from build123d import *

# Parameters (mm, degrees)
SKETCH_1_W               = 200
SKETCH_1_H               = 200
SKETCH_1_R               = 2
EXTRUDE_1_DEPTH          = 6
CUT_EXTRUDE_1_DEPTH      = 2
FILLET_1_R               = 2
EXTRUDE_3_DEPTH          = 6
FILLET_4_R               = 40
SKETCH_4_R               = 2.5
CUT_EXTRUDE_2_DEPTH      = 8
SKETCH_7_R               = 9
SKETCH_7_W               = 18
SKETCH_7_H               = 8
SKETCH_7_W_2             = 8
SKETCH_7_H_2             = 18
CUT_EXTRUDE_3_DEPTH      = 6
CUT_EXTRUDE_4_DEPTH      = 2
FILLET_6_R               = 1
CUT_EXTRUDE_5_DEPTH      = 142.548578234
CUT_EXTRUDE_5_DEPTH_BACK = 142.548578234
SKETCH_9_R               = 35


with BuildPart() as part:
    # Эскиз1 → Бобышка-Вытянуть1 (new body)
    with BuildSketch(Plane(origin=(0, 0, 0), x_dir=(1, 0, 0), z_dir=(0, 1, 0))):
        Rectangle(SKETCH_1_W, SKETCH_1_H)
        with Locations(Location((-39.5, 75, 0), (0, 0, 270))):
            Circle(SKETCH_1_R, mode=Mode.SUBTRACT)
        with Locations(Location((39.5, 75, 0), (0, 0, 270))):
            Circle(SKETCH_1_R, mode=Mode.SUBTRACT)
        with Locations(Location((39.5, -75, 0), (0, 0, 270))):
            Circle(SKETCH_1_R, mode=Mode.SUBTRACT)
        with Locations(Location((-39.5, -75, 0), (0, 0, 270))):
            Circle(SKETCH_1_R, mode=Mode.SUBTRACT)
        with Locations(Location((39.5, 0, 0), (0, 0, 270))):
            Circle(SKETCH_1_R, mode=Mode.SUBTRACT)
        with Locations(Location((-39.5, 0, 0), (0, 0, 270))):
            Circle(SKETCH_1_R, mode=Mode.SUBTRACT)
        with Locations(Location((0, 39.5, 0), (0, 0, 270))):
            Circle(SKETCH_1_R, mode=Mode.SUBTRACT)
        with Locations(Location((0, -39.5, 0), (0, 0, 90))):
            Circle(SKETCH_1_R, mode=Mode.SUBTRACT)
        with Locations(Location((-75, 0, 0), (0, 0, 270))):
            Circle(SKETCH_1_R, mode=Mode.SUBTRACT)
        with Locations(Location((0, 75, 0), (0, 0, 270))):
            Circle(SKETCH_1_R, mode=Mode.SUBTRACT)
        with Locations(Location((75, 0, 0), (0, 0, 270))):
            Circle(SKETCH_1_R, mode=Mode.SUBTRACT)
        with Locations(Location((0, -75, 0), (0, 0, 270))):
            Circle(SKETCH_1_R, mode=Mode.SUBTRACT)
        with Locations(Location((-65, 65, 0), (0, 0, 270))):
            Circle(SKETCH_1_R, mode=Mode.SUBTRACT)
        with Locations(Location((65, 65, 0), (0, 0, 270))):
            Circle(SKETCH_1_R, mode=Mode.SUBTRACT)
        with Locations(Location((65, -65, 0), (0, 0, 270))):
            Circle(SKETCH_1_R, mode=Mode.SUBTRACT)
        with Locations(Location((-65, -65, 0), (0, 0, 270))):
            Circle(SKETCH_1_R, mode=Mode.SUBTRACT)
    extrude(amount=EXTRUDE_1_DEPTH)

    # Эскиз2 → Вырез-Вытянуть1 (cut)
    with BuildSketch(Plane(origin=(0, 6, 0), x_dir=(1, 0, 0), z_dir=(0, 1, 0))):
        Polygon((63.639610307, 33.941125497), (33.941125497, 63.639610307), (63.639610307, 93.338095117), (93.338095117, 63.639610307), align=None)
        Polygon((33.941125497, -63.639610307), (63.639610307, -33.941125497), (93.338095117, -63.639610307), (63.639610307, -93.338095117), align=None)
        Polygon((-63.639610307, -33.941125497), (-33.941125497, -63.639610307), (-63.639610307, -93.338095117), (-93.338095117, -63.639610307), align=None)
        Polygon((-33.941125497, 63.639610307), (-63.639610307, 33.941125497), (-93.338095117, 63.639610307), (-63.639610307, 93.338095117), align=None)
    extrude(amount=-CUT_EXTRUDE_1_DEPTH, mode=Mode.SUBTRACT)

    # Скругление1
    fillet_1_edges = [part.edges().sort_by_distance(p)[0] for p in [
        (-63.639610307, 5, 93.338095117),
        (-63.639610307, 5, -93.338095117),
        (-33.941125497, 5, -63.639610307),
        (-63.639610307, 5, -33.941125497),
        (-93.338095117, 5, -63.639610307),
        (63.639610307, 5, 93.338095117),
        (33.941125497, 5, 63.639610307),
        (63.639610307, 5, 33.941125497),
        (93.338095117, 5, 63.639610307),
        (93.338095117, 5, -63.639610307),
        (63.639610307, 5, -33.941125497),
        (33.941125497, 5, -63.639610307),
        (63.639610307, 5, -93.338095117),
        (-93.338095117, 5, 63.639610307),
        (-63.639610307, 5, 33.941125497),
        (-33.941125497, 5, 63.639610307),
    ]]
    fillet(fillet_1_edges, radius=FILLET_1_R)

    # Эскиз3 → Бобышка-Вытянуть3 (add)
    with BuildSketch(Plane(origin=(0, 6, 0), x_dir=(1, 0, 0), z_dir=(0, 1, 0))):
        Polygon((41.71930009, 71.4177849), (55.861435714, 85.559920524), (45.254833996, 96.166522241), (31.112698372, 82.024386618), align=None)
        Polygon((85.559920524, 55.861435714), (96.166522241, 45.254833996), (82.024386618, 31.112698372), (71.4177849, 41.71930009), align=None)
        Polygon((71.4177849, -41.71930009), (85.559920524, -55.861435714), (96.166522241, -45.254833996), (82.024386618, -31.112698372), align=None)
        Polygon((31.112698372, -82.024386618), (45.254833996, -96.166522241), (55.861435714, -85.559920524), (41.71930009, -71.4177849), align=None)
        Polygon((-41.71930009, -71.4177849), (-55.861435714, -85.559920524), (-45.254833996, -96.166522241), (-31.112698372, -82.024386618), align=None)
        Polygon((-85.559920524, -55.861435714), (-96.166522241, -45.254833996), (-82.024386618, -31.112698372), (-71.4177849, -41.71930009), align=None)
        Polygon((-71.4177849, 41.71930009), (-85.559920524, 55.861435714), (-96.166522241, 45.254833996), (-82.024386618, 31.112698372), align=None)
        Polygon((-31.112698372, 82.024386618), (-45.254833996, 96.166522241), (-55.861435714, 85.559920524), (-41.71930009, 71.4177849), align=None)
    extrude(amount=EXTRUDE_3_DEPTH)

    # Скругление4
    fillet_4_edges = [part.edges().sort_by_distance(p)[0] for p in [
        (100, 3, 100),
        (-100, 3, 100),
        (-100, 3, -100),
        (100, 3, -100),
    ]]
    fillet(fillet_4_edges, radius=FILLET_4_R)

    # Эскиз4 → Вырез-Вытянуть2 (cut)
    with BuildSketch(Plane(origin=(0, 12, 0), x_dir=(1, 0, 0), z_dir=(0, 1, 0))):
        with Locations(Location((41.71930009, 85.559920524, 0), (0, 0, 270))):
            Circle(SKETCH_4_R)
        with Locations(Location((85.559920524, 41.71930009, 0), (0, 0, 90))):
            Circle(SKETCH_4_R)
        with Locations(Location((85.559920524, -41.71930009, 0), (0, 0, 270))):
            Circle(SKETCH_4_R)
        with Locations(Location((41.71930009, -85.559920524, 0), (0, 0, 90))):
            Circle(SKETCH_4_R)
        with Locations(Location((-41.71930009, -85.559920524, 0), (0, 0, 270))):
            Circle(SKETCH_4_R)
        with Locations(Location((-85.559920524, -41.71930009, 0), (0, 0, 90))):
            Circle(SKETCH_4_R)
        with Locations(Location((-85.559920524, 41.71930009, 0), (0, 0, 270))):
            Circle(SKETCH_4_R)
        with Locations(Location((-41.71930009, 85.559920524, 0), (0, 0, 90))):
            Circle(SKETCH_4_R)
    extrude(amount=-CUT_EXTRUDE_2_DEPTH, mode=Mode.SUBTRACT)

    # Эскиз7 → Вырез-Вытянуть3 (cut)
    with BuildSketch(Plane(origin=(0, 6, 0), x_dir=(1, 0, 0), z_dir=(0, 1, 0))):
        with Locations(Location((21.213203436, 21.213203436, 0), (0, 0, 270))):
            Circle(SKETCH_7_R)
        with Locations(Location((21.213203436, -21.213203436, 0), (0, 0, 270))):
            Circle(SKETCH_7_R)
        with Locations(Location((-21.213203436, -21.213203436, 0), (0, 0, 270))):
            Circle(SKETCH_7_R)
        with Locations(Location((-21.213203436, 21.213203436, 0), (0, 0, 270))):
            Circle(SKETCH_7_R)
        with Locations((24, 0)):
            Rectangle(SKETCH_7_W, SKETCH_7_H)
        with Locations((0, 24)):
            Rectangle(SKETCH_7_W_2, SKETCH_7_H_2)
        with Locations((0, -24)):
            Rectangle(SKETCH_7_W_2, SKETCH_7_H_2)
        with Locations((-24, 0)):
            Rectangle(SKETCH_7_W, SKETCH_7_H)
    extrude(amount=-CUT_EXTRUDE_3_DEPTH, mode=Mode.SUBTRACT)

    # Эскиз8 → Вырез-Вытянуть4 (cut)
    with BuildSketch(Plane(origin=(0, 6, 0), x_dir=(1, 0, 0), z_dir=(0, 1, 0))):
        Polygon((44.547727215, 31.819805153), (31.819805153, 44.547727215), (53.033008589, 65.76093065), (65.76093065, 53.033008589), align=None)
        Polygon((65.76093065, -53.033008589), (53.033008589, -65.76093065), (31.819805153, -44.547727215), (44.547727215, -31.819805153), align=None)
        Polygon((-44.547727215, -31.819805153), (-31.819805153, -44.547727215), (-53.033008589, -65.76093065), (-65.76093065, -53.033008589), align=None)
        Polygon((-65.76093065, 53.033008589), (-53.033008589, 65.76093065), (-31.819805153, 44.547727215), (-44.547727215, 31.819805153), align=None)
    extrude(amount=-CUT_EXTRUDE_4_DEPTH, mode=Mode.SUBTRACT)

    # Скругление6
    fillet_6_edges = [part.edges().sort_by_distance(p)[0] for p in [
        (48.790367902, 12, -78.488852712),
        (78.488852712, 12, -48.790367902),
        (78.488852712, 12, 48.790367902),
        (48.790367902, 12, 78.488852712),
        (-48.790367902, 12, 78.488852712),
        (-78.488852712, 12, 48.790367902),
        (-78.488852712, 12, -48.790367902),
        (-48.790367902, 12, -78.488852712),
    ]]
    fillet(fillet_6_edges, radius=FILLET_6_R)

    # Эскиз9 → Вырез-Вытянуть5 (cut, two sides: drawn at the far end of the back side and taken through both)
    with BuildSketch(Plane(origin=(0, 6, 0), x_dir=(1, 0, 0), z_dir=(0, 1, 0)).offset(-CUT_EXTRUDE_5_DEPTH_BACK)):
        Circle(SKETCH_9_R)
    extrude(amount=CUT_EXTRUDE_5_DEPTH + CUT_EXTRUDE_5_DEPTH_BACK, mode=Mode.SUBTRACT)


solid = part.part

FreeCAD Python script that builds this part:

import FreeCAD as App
import Part
import Sketcher
from FreeCAD import Vector
Q = App.Units.Quantity


def edges_at(feature, points):
    """Names of the edges that pass closest to the given points."""
    edges = feature.Shape.Edges
    near = lambda p: min(range(len(edges)), key=lambda i: edges[i].distToShape(Part.Vertex(*p))[0])
    return sorted({f"Edge{near(p) + 1}" for p in points})

doc = App.newDocument("Part")
body = doc.addObject("PartDesign::Body", "Body")

# Sketch on XZ plane
sketch1 = body.newObject("Sketcher::SketchObject", "Sketch")
sketch1.AttachmentSupport = (doc.getObject("XZ_Plane"), [""])
sketch1.MapMode = "FlatFace"
sketch1.addGeometry([
    Part.LineSegment(Vector(-100, -100, 0), Vector(-100, 100, 0)),  # 0
    Part.LineSegment(Vector(-100, 100, 0), Vector(100, 100, 0)),  # 1
    Part.LineSegment(Vector(100, 100, 0), Vector(100, -100, 0)),  # 2
    Part.LineSegment(Vector(100, -100, 0), Vector(-100, -100, 0)),  # 3
    Part.Circle(Vector(-65, 65, 0), Vector(0, 0, 1), 2),  # 4
    Part.Circle(Vector(-39.5, 75, 0), Vector(0, 0, 1), 2),  # 5
    Part.Circle(Vector(0, 75, 0), Vector(0, 0, 1), 2),  # 6
    Part.Circle(Vector(0, 39.5, 0), Vector(0, 0, 1), 2),  # 7
    Part.Circle(Vector(39.5, 75, 0), Vector(0, 0, 1), 2),  # 8
    Part.Circle(Vector(65, 65, 0), Vector(0, 0, 1), 2),  # 9
    Part.Circle(Vector(-75, 0, 0), Vector(0, 0, 1), 2),  # 10
    Part.Circle(Vector(-39.5, 0, 0), Vector(0, 0, 1), 2),  # 11
    Part.Circle(Vector(-65, -65, 0), Vector(0, 0, 1), 2),  # 12
    Part.Circle(Vector(-39.5, -75, 0), Vector(0, 0, 1), 2),  # 13
    Part.Circle(Vector(39.5, 0, 0), Vector(0, 0, 1), 2),  # 14
    Part.Circle(Vector(75, 0, 0), Vector(0, 0, 1), 2),  # 15
    Part.Circle(Vector(0, -39.5, 0), Vector(0, 0, 1), 2),  # 16
    Part.Circle(Vector(0, -75, 0), Vector(0, 0, 1), 2),  # 17
    Part.Circle(Vector(39.5, -75, 0), Vector(0, 0, 1), 2),  # 18
    Part.Circle(Vector(65, -65, 0), Vector(0, 0, 1), 2),  # 19
], False)
sketch1.addConstraint([
    Sketcher.Constraint("Coincident", 0, 2, 1, 1),
    Sketcher.Constraint("Coincident", 1, 2, 2, 1),
    Sketcher.Constraint("Coincident", 2, 2, 3, 1),
    Sketcher.Constraint("Coincident", 3, 2, 0, 1),
    Sketcher.Constraint("Vertical", 0),
    Sketcher.Constraint("Horizontal", 1),
    Sketcher.Constraint("Vertical", 2),
    Sketcher.Constraint("Horizontal", 3),
    Sketcher.Constraint("Equal", 4, 5),
    Sketcher.Constraint("Equal", 5, 6),
    Sketcher.Constraint("Equal", 6, 7),
    Sketcher.Constraint("Equal", 7, 8),
    Sketcher.Constraint("Equal", 8, 9),
    Sketcher.Constraint("Equal", 9, 10),
    Sketcher.Constraint("Equal", 10, 11),
    Sketcher.Constraint("Equal", 11, 12),
    Sketcher.Constraint("Equal", 12, 13),
    Sketcher.Constraint("Equal", 13, 14),
    Sketcher.Constraint("Equal", 14, 15),
    Sketcher.Constraint("Equal", 15, 16),
    Sketcher.Constraint("Equal", 16, 17),
    Sketcher.Constraint("Equal", 17, 18),
    Sketcher.Constraint("Equal", 18, 19),
    Sketcher.Constraint("Symmetric", 9, 3, 12, 3, -1, 1),
    Sketcher.Constraint("Symmetric", 8, 3, 13, 3, -1, 1),
    Sketcher.Constraint("Symmetric", 11, 3, 14, 3, -1, 1),
    Sketcher.Constraint("Symmetric", 10, 3, 15, 3, -1, 1),
    Sketcher.Constraint("Symmetric", 7, 3, 16, 3, -1, 1),
    Sketcher.Constraint("Symmetric", 6, 3, 17, 3, -1, 1),
    Sketcher.Constraint("Symmetric", 5, 3, 18, 3, -1, 1),
    Sketcher.Constraint("Symmetric", 4, 3, 19, 3, -1, 1),
    Sketcher.Constraint("Symmetric", 0, 2, 2, 2, -1, 1),
    Sketcher.Constraint("Symmetric", 5, 3, 8, 3, -2),
    Sketcher.Constraint("Symmetric", 4, 3, 9, 3, -2),
    Sketcher.Constraint("PointOnObject", 6, 3, -2),
    Sketcher.Constraint("PointOnObject", 7, 3, -2),
    Sketcher.Constraint("PointOnObject", 10, 3, -1),
    Sketcher.Constraint("PointOnObject", 11, 3, -1),
    Sketcher.Constraint("Horizontal", 5, 3, 6, 3),
    Sketcher.Constraint("Vertical", 5, 3, 11, 3),
    Sketcher.Constraint("Equal", 3, 0),
    Sketcher.Constraint("Diameter", 4, Q("4 mm")),
    Sketcher.Constraint("DistanceX", 1, 1, 1, 2, Q("200 mm")),
    Sketcher.Constraint("DistanceX", 4, 3, -1, 1, Q("65 mm")),
    Sketcher.Constraint("DistanceY", -1, 1, 4, 3, Q("65 mm")),
    Sketcher.Constraint("DistanceY", -1, 1, 5, 3, Q("75 mm")),
    Sketcher.Constraint("DistanceX", 10, 3, -1, 1, Q("75 mm")),
    Sketcher.Constraint("DistanceX", 5, 3, 8, 3, Q("79 mm")),
    Sketcher.Constraint("DistanceY", 16, 3, 7, 3, Q("79 mm")),
])
pad1 = body.newObject("PartDesign::Pad", "Pad")
pad1.Profile = sketch1
pad1.Length = 6
pad1.Reversed = True

# Sketch on XZ plane
sketch2 = body.newObject("Sketcher::SketchObject", "Sketch001")
sketch2.AttachmentSupport = (doc.getObject("XZ_Plane"), [""])
sketch2.MapMode = "FlatFace"
sketch2.AttachmentOffset = App.Placement(Vector(0, 0, -6), App.Rotation())
sketch2.addGeometry([
    Part.LineSegment(Vector(33.941125, -63.63961, 0), Vector(63.63961, -33.941125, 0)),  # 0
    Part.LineSegment(Vector(63.63961, -33.941125, 0), Vector(93.338095, -63.63961, 0)),  # 1
    Part.LineSegment(Vector(93.338095, -63.63961, 0), Vector(63.63961, -93.338095, 0)),  # 2
    Part.LineSegment(Vector(63.63961, -93.338095, 0), Vector(33.941125, -63.63961, 0)),  # 3
    Part.LineSegment(Vector(63.63961, 33.941125, 0), Vector(33.941125, 63.63961, 0)),  # 4
    Part.LineSegment(Vector(33.941125, 63.63961, 0), Vector(63.63961, 93.338095, 0)),  # 5
    Part.LineSegment(Vector(63.63961, 93.338095, 0), Vector(93.338095, 63.63961, 0)),  # 6
    Part.LineSegment(Vector(93.338095, 63.63961, 0), Vector(63.63961, 33.941125, 0)),  # 7
    Part.LineSegment(Vector(-33.941125, 63.63961, 0), Vector(-63.63961, 33.941125, 0)),  # 8
    Part.LineSegment(Vector(-63.63961, 33.941125, 0), Vector(-93.338095, 63.63961, 0)),  # 9
    Part.LineSegment(Vector(-93.338095, 63.63961, 0), Vector(-63.63961, 93.338095, 0)),  # 10
    Part.LineSegment(Vector(-63.63961, 93.338095, 0), Vector(-33.941125, 63.63961, 0)),  # 11
    Part.LineSegment(Vector(-63.63961, -33.941125, 0), Vector(-33.941125, -63.63961, 0)),  # 12
    Part.LineSegment(Vector(-33.941125, -63.63961, 0), Vector(-63.63961, -93.338095, 0)),  # 13
    Part.LineSegment(Vector(-63.63961, -93.338095, 0), Vector(-93.338095, -63.63961, 0)),  # 14
    Part.LineSegment(Vector(-93.338095, -63.63961, 0), Vector(-63.63961, -33.941125, 0)),  # 15
], False)
sketch2.addConstraint([
    Sketcher.Constraint("Coincident", 0, 2, 1, 1),
    Sketcher.Constraint("Coincident", 1, 2, 2, 1),
    Sketcher.Constraint("Coincident", 2, 2, 3, 1),
    Sketcher.Constraint("Coincident", 3, 2, 0, 1),
    Sketcher.Constraint("Coincident", 4, 2, 5, 1),
    Sketcher.Constraint("Coincident", 5, 2, 6, 1),
    Sketcher.Constraint("Coincident", 6, 2, 7, 1),
    Sketcher.Constraint("Coincident", 7, 2, 4, 1),
    Sketcher.Constraint("Coincident", 8, 2, 9, 1),
    Sketcher.Constraint("Coincident", 9, 2, 10, 1),
    Sketcher.Constraint("Coincident", 10, 2, 11, 1),
    Sketcher.Constraint("Coincident", 11, 2, 8, 1),
    Sketcher.Constraint("Coincident", 12, 2, 13, 1),
    Sketcher.Constraint("Coincident", 13, 2, 14, 1),
    Sketcher.Constraint("Coincident", 14, 2, 15, 1),
    Sketcher.Constraint("Coincident", 15, 2, 12, 1),
    Sketcher.Constraint("Symmetric", 0, 2, 8, 2, -1, 1),
    Sketcher.Constraint("Symmetric", 1, 2, 9, 2, -1, 1),
    Sketcher.Constraint("Symmetric", 2, 2, 10, 2, -1, 1),
    Sketcher.Constraint("Symmetric", 3, 2, 11, 2, -1, 1),
    Sketcher.Constraint("Symmetric", 4, 2, 12, 2, -1, 1),
    Sketcher.Constraint("Symmetric", 5, 2, 13, 2, -1, 1),
    Sketcher.Constraint("Symmetric", 6, 2, 14, 2, -1, 1),
    Sketcher.Constraint("Symmetric", 7, 2, 15, 2, -1, 1),
    Sketcher.Constraint("Symmetric", 7, 2, 8, 2, -2),
    Sketcher.Constraint("Symmetric", 6, 2, 9, 2, -2),
    Sketcher.Constraint("Symmetric", 5, 2, 10, 2, -2),
    Sketcher.Constraint("Symmetric", 4, 2, 11, 2, -2),
    Sketcher.Constraint("Perpendicular", 0, 1),
    Sketcher.Constraint("Perpendicular", 1, 2),
    Sketcher.Constraint("Perpendicular", 2, 3),
    Sketcher.Constraint("Parallel", 3, 4),
    Sketcher.Constraint("Horizontal", 1, 2, 3, 2),
    Sketcher.Constraint("Distance", 0, Q("42 mm")),
    Sketcher.Constraint("DistanceX", -1, 1, 0, 2, Q("63.63961 mm")),
    Sketcher.Constraint("DistanceY", 1, 2, -1, 1, Q("63.63961 mm")),
])
pocket1 = body.newObject("PartDesign::Pocket", "Pocket")
pocket1.Profile = sketch2
pocket1.Length = 2
pocket1.Reversed = True
doc.recompute()

fillet = body.newObject("PartDesign::Fillet", "Fillet")
fillet.Base = (pocket1, edges_at(pocket1, [
    (-63.64, 5, 93.338),
    (-63.64, 5, -93.338),
    (-33.941, 5, -63.64),
    (-63.64, 5, -33.941),
    (-93.338, 5, -63.64),
    (63.64, 5, 93.338),
    (33.941, 5, 63.64),
    (63.64, 5, 33.941),
    (93.338, 5, 63.64),
    (93.338, 5, -63.64),
    (63.64, 5, -33.941),
    (33.941, 5, -63.64),
    (63.64, 5, -93.338),
    (-93.338, 5, 63.64),
    (-63.64, 5, 33.941),
    (-33.941, 5, 63.64),
]))
fillet.Radius = 2

# Sketch on XZ plane
sketch3 = body.newObject("Sketcher::SketchObject", "Sketch002")
sketch3.AttachmentSupport = (doc.getObject("XZ_Plane"), [""])
sketch3.MapMode = "FlatFace"
sketch3.AttachmentOffset = App.Placement(Vector(0, 0, -6), App.Rotation())
sketch3.addGeometry([
    Part.LineSegment(Vector(41.7193, -71.417785, 0), Vector(55.861436, -85.559921, 0)),  # 0
    Part.LineSegment(Vector(55.861436, -85.559921, 0), Vector(45.254834, -96.166522, 0)),  # 1
    Part.LineSegment(Vector(45.254834, -96.166522, 0), Vector(31.112698, -82.024387, 0)),  # 2
    Part.LineSegment(Vector(31.112698, -82.024387, 0), Vector(41.7193, -71.417785, 0)),  # 3
    Part.LineSegment(Vector(96.166522, -45.254834, 0), Vector(85.559921, -55.861436, 0)),  # 4
    Part.LineSegment(Vector(85.559921, -55.861436, 0), Vector(71.417785, -41.7193, 0)),  # 5
    Part.LineSegment(Vector(71.417785, -41.7193, 0), Vector(82.024387, -31.112698, 0)),  # 6
    Part.LineSegment(Vector(82.024387, -31.112698, 0), Vector(96.166522, -45.254834, 0)),  # 7
    Part.LineSegment(Vector(71.417785, 41.7193, 0), Vector(85.559921, 55.861436, 0)),  # 8
    Part.LineSegment(Vector(85.559921, 55.861436, 0), Vector(96.166522, 45.254834, 0)),  # 9
    Part.LineSegment(Vector(96.166522, 45.254834, 0), Vector(82.024387, 31.112698, 0)),  # 10
    Part.LineSegment(Vector(82.024387, 31.112698, 0), Vector(71.417785, 41.7193, 0)),  # 11
    Part.LineSegment(Vector(31.112698, 82.024387, 0), Vector(45.254834, 96.166522, 0)),  # 12
    Part.LineSegment(Vector(45.254834, 96.166522, 0), Vector(55.861436, 85.559921, 0)),  # 13
    Part.LineSegment(Vector(55.861436, 85.559921, 0), Vector(41.7193, 71.417785, 0)),  # 14
    Part.LineSegment(Vector(41.7193, 71.417785, 0), Vector(31.112698, 82.024387, 0)),  # 15
    Part.LineSegment(Vector(-41.7193, 71.417785, 0), Vector(-55.861436, 85.559921, 0)),  # 16
    Part.LineSegment(Vector(-55.861436, 85.559921, 0), Vector(-45.254834, 96.166522, 0)),  # 17
    Part.LineSegment(Vector(-45.254834, 96.166522, 0), Vector(-31.112698, 82.024387, 0)),  # 18
    Part.LineSegment(Vector(-31.112698, 82.024387, 0), Vector(-41.7193, 71.417785, 0)),  # 19
    Part.LineSegment(Vector(-96.166522, 45.254834, 0), Vector(-85.559921, 55.861436, 0)),  # 20
    Part.LineSegment(Vector(-85.559921, 55.861436, 0), Vector(-71.417785, 41.7193, 0)),  # 21
    Part.LineSegment(Vector(-71.417785, 41.7193, 0), Vector(-82.024387, 31.112698, 0)),  # 22
    Part.LineSegment(Vector(-82.024387, 31.112698, 0), Vector(-96.166522, 45.254834, 0)),  # 23
    Part.LineSegment(Vector(-71.417785, -41.7193, 0), Vector(-85.559921, -55.861436, 0)),  # 24
    Part.LineSegment(Vector(-85.559921, -55.861436, 0), Vector(-96.166522, -45.254834, 0)),  # 25
    Part.LineSegment(Vector(-96.166522, -45.254834, 0), Vector(-82.024387, -31.112698, 0)),  # 26
    Part.LineSegment(Vector(-82.024387, -31.112698, 0), Vector(-71.417785, -41.7193, 0)),  # 27
    Part.LineSegment(Vector(-31.112698, -82.024387, 0), Vector(-45.254834, -96.166522, 0)),  # 28
    Part.LineSegment(Vector(-45.254834, -96.166522, 0), Vector(-55.861436, -85.559921, 0)),  # 29
    Part.LineSegment(Vector(-55.861436, -85.559921, 0), Vector(-41.7193, -71.417785, 0)),  # 30
    Part.LineSegment(Vector(-41.7193, -71.417785, 0), Vector(-31.112698, -82.024387, 0)),  # 31
], False)
sketch3.addConstraint([
    Sketcher.Constraint("Coincident", 0, 2, 1, 1),
    Sketcher.Constraint("Coincident", 1, 2, 2, 1),
    Sketcher.Constraint("Coincident", 2, 2, 3, 1),
    Sketcher.Constraint("Coincident", 3, 2, 0, 1),
    Sketcher.Constraint("Coincident", 4, 2, 5, 1),
    Sketcher.Constraint("Coincident", 5, 2, 6, 1),
    Sketcher.Constraint("Coincident", 6, 2, 7, 1),
    Sketcher.Constraint("Coincident", 7, 2, 4, 1),
    Sketcher.Constraint("Coincident", 8, 2, 9, 1),
    Sketcher.Constraint("Coincident", 9, 2, 10, 1),
    Sketcher.Constraint("Coincident", 10, 2, 11, 1),
    Sketcher.Constraint("Coincident", 11, 2, 8, 1),
    Sketcher.Constraint("Coincident", 12, 2, 13, 1),
    Sketcher.Constraint("Coincident", 13, 2, 14, 1),
    Sketcher.Constraint("Coincident", 14, 2, 15, 1),
    Sketcher.Constraint("Coincident", 15, 2, 12, 1),
    Sketcher.Constraint("Coincident", 16, 2, 17, 1),
    Sketcher.Constraint("Coincident", 17, 2, 18, 1),
    Sketcher.Constraint("Coincident", 18, 2, 19, 1),
    Sketcher.Constraint("Coincident", 19, 2, 16, 1),
    Sketcher.Constraint("Coincident", 20, 2, 21, 1),
    Sketcher.Constraint("Coincident", 21, 2, 22, 1),
    Sketcher.Constraint("Coincident", 22, 2, 23, 1),
    Sketcher.Constraint("Coincident", 23, 2, 20, 1),
    Sketcher.Constraint("Coincident", 24, 2, 25, 1),
    Sketcher.Constraint("Coincident", 25, 2, 26, 1),
    Sketcher.Constraint("Coincident", 26, 2, 27, 1),
    Sketcher.Constraint("Coincident", 27, 2, 24, 1),
    Sketcher.Constraint("Coincident", 28, 2, 29, 1),
    Sketcher.Constraint("Coincident", 29, 2, 30, 1),
    Sketcher.Constraint("Coincident", 30, 2, 31, 1),
    Sketcher.Constraint("Coincident", 31, 2, 28, 1),
    Sketcher.Constraint("Symmetric", 0, 2, 16, 2, -1, 1),
    Sketcher.Constraint("Symmetric", 1, 2, 17, 2, -1, 1),
    Sketcher.Constraint("Symmetric", 2, 2, 18, 2, -1, 1),
    Sketcher.Constraint("Symmetric", 3, 2, 19, 2, -1, 1),
    Sketcher.Constraint("Symmetric", 4, 2, 20, 2, -1, 1),
    Sketcher.Constraint("Symmetric", 5, 2, 21, 2, -1, 1),
    Sketcher.Constraint("Symmetric", 6, 2, 22, 2, -1, 1),
    Sketcher.Constraint("Symmetric", 7, 2, 23, 2, -1, 1),
    Sketcher.Constraint("Symmetric", 8, 2, 24, 2, -1, 1),
    Sketcher.Constraint("Symmetric", 9, 2, 25, 2, -1, 1),
    Sketcher.Constraint("Symmetric", 10, 2, 26, 2, -1, 1),
    Sketcher.Constraint("Symmetric", 11, 2, 27, 2, -1, 1),
    Sketcher.Constraint("Symmetric", 12, 2, 28, 2, -1, 1),
    Sketcher.Constraint("Symmetric", 13, 2, 29, 2, -1, 1),
    Sketcher.Constraint("Symmetric", 14, 2, 30, 2, -1, 1),
    Sketcher.Constraint("Symmetric", 15, 2, 31, 2, -1, 1),
    Sketcher.Constraint("Symmetric", 13, 2, 16, 2, -2),
    Sketcher.Constraint("Symmetric", 12, 2, 17, 2, -2),
    Sketcher.Constraint("Symmetric", 15, 2, 18, 2, -2),
    Sketcher.Constraint("Symmetric", 14, 2, 19, 2, -2),
    Sketcher.Constraint("Symmetric", 8, 2, 20, 2, -2),
    Sketcher.Constraint("Symmetric", 11, 2, 21, 2, -2),
    Sketcher.Constraint("Symmetric", 10, 2, 22, 2, -2),
    Sketcher.Constraint("Symmetric", 9, 2, 23, 2, -2),
    Sketcher.Constraint("Perpendicular", 0, 1),
    Sketcher.Constraint("Perpendicular", 1, 2),
    Sketcher.Constraint("Perpendicular", 2, 3),
    Sketcher.Constraint("Parallel", 3, 4),
    Sketcher.Constraint("Perpendicular", 4, 5),
    Sketcher.Constraint("Perpendicular", 5, 6),
    Sketcher.Constraint("Perpendicular", 6, 7),
    Sketcher.Constraint("Perpendicular", 7, 8),
    Sketcher.Constraint("Equal", 3, 4),
    Sketcher.Constraint("Equal", 2, 5),
    Sketcher.Constraint("Distance", 0, Q("20 mm")),
    Sketcher.Constraint("Distance", 1, Q("15 mm")),
    Sketcher.Constraint("DistanceY", 5, 2, 10, 2, Q("72.831998 mm")),
    Sketcher.Constraint("DistanceX", 18, 2, 14, 2, Q("72.831998 mm")),
    Sketcher.Constraint("DistanceY", 0, 2, -1, 1, Q("85.559921 mm")),
    Sketcher.Constraint("DistanceX", -1, 1, 4, 2, Q("85.559921 mm")),
])
pad2 = body.newObject("PartDesign::Pad", "Pad001")
pad2.Profile = sketch3
pad2.Length = 6
pad2.Reversed = True
doc.recompute()

fillet2 = body.newObject("PartDesign::Fillet", "Fillet001")
fillet2.Base = (pad2, edges_at(pad2, [
    (100, 3, 100),
    (-100, 3, 100),
    (-100, 3, -100),
    (100, 3, -100),
]))
fillet2.Radius = 40

# Sketch on XZ plane
sketch4 = body.newObject("Sketcher::SketchObject", "Sketch003")
sketch4.AttachmentSupport = (doc.getObject("XZ_Plane"), [""])
sketch4.MapMode = "FlatFace"
sketch4.AttachmentOffset = App.Placement(Vector(0, 0, -12), App.Rotation())
sketch4.addGeometry([
    Part.Circle(Vector(41.7193, -85.559921, 0), Vector(0, 0, 1), 2.5),  # 0
    Part.Circle(Vector(85.559921, -41.7193, 0), Vector(0, 0, 1), 2.5),  # 1
    Part.Circle(Vector(85.559921, 41.7193, 0), Vector(0, 0, 1), 2.5),  # 2
    Part.Circle(Vector(41.7193, 85.559921, 0), Vector(0, 0, 1), 2.5),  # 3
    Part.Circle(Vector(-41.7193, 85.559921, 0), Vector(0, 0, 1), 2.5),  # 4
    Part.Circle(Vector(-85.559921, 41.7193, 0), Vector(0, 0, 1), 2.5),  # 5
    Part.Circle(Vector(-85.559921, -41.7193, 0), Vector(0, 0, 1), 2.5),  # 6
    Part.Circle(Vector(-41.7193, -85.559921, 0), Vector(0, 0, 1), 2.5),  # 7
], False)
sketch4.addConstraint([
    Sketcher.Constraint("Equal", 0, 1),
    Sketcher.Constraint("Equal", 1, 2),
    Sketcher.Constraint("Equal", 2, 3),
    Sketcher.Constraint("Equal", 3, 4),
    Sketcher.Constraint("Equal", 4, 5),
    Sketcher.Constraint("Equal", 5, 6),
    Sketcher.Constraint("Equal", 6, 7),
    Sketcher.Constraint("Symmetric", 0, 3, 4, 3, -1, 1),
    Sketcher.Constraint("Symmetric", 1, 3, 5, 3, -1, 1),
    Sketcher.Constraint("Symmetric", 2, 3, 6, 3, -1, 1),
    Sketcher.Constraint("Symmetric", 3, 3, 7, 3, -1, 1),
    Sketcher.Constraint("Symmetric", 3, 3, 4, 3, -2),
    Sketcher.Constraint("Symmetric", 2, 3, 5, 3, -2),
    Sketcher.Constraint("Diameter", 0, Q("5 mm")),
    Sketcher.Constraint("DistanceX", -1, 1, 0, 3, Q("41.7193 mm")),
    Sketcher.Constraint("DistanceY", 1, 3, -1, 1, Q("41.7193 mm")),
    Sketcher.Constraint("DistanceY", 0, 3, -1, 1, Q("85.559921 mm")),
    Sketcher.Constraint("DistanceX", -1, 1, 1, 3, Q("85.559921 mm")),
])
pocket2 = body.newObject("PartDesign::Pocket", "Pocket001")
pocket2.Profile = sketch4
pocket2.Length = 8
pocket2.Reversed = True

# Sketch on XZ plane
sketch5 = body.newObject("Sketcher::SketchObject", "Sketch004")
sketch5.AttachmentSupport = (doc.getObject("XZ_Plane"), [""])
sketch5.MapMode = "FlatFace"
sketch5.AttachmentOffset = App.Placement(Vector(0, 0, -6), App.Rotation())
sketch5.addGeometry([
    Part.Circle(Vector(21.213203, -21.213203, 0), Vector(0, 0, 1), 9),  # 0
    Part.Circle(Vector(21.213203, 21.213203, 0), Vector(0, 0, 1), 9),  # 1
    Part.Circle(Vector(-21.213203, 21.213203, 0), Vector(0, 0, 1), 9),  # 2
    Part.Circle(Vector(-21.213203, -21.213203, 0), Vector(0, 0, 1), 9),  # 3
    Part.LineSegment(Vector(15, -4, 0), Vector(15, 4, 0)),  # 4
    Part.LineSegment(Vector(15, 4, 0), Vector(33, 4, 0)),  # 5
    Part.LineSegment(Vector(33, 4, 0), Vector(33, -4, 0)),  # 6
    Part.LineSegment(Vector(33, -4, 0), Vector(15, -4, 0)),  # 7
    Part.LineSegment(Vector(-4, -33, 0), Vector(-4, -15, 0)),  # 8
    Part.LineSegment(Vector(-4, -15, 0), Vector(4, -15, 0)),  # 9
    Part.LineSegment(Vector(4, -15, 0), Vector(4, -33, 0)),  # 10
    Part.LineSegment(Vector(4, -33, 0), Vector(-4, -33, 0)),  # 11
    Part.LineSegment(Vector(-4, 15, 0), Vector(-4, 33, 0)),  # 12
    Part.LineSegment(Vector(-4, 33, 0), Vector(4, 33, 0)),  # 13
    Part.LineSegment(Vector(4, 33, 0), Vector(4, 15, 0)),  # 14
    Part.LineSegment(Vector(4, 15, 0), Vector(-4, 15, 0)),  # 15
    Part.LineSegment(Vector(-33, -4, 0), Vector(-33, 4, 0)),  # 16
    Part.LineSegment(Vector(-33, 4, 0), Vector(-15, 4, 0)),  # 17
    Part.LineSegment(Vector(-15, 4, 0), Vector(-15, -4, 0)),  # 18
    Part.LineSegment(Vector(-15, -4, 0), Vector(-33, -4, 0)),  # 19
], False)
sketch5.addConstraint([
    Sketcher.Constraint("Coincident", 4, 2, 5, 1),
    Sketcher.Constraint("Coincident", 5, 2, 6, 1),
    Sketcher.Constraint("Coincident", 6, 2, 7, 1),
    Sketcher.Constraint("Coincident", 7, 2, 4, 1),
    Sketcher.Constraint("Coincident", 8, 2, 9, 1),
    Sketcher.Constraint("Coincident", 9, 2, 10, 1),
    Sketcher.Constraint("Coincident", 10, 2, 11, 1),
    Sketcher.Constraint("Coincident", 11, 2, 8, 1),
    Sketcher.Constraint("Coincident", 12, 2, 13, 1),
    Sketcher.Constraint("Coincident", 13, 2, 14, 1),
    Sketcher.Constraint("Coincident", 14, 2, 15, 1),
    Sketcher.Constraint("Coincident", 15, 2, 12, 1),
    Sketcher.Constraint("Coincident", 16, 2, 17, 1),
    Sketcher.Constraint("Coincident", 17, 2, 18, 1),
    Sketcher.Constraint("Coincident", 18, 2, 19, 1),
    Sketcher.Constraint("Coincident", 19, 2, 16, 1),
    Sketcher.Constraint("Vertical", 4),
    Sketcher.Constraint("Horizontal", 5),
    Sketcher.Constraint("Vertical", 6),
    Sketcher.Constraint("Horizontal", 7),
    Sketcher.Constraint("Vertical", 8),
    Sketcher.Constraint("Horizontal", 9),
    Sketcher.Constraint("Vertical", 10),
    Sketcher.Constraint("Horizontal", 11),
    Sketcher.Constraint("Vertical", 12),
    Sketcher.Constraint("Horizontal", 13),
    Sketcher.Constraint("Vertical", 14),
    Sketcher.Constraint("Horizontal", 15),
    Sketcher.Constraint("Vertical", 16),
    Sketcher.Constraint("Horizontal", 17),
    Sketcher.Constraint("Vertical", 18),
    Sketcher.Constraint("Horizontal", 19),
    Sketcher.Constraint("Equal", 0, 1),
    Sketcher.Constraint("Equal", 1, 2),
    Sketcher.Constraint("Equal", 2, 3),
    Sketcher.Constraint("Symmetric", 0, 3, 2, 3, -1, 1),
    Sketcher.Constraint("Symmetric", 1, 3, 3, 3, -1, 1),
    Sketcher.Constraint("Symmetric", 10, 2, 12, 2, -1, 1),
    Sketcher.Constraint("Symmetric", 8, 2, 14, 2, -1, 1),
    Sketcher.Constraint("Symmetric", 6, 2, 16, 2, -1, 1),
    Sketcher.Constraint("Symmetric", 4, 2, 18, 2, -1, 1),
    Sketcher.Constraint("Symmetric", 1, 3, 2, 3, -2),
    Sketcher.Constraint("Horizontal", 5, 2, 16, 2),
    Sketcher.Constraint("Vertical", 11, 2, 12, 2),
    Sketcher.Constraint("Equal", 15, 4),
    Sketcher.Constraint("Equal", 19, 8),
    Sketcher.Constraint("Diameter", 0, Q("18 mm")),
    Sketcher.Constraint("DistanceX", 5, 1, 5, 2, Q("18 mm")),
    Sketcher.Constraint("DistanceX", 9, 1, 9, 2, Q("8 mm")),
    Sketcher.Constraint("DistanceX", -1, 1, 4, 2, Q("15 mm")),
    Sketcher.Constraint("DistanceY", 8, 2, -1, 1, Q("15 mm")),
    Sketcher.Constraint("DistanceX", -1, 1, 0, 3, Q("21.213203 mm")),
    Sketcher.Constraint("DistanceY", 0, 3, -1, 1, Q("21.213203 mm")),
])
pocket3 = body.newObject("PartDesign::Pocket", "Pocket002")
pocket3.Profile = sketch5
pocket3.Length = 6
pocket3.Reversed = True

# Sketch on XZ plane
sketch6 = body.newObject("Sketcher::SketchObject", "Sketch005")
sketch6.AttachmentSupport = (doc.getObject("XZ_Plane"), [""])
sketch6.MapMode = "FlatFace"
sketch6.AttachmentOffset = App.Placement(Vector(0, 0, -6), App.Rotation())
sketch6.addGeometry([
    Part.LineSegment(Vector(31.819805, -44.547727, 0), Vector(44.547727, -31.819805, 0)),  # 0
    Part.LineSegment(Vector(44.547727, -31.819805, 0), Vector(65.760931, -53.033009, 0)),  # 1
    Part.LineSegment(Vector(65.760931, -53.033009, 0), Vector(53.033009, -65.760931, 0)),  # 2
    Part.LineSegment(Vector(53.033009, -65.760931, 0), Vector(31.819805, -44.547727, 0)),  # 3
    Part.LineSegment(Vector(53.033009, 65.760931, 0), Vector(65.760931, 53.033009, 0)),  # 4
    Part.LineSegment(Vector(65.760931, 53.033009, 0), Vector(44.547727, 31.819805, 0)),  # 5
    Part.LineSegment(Vector(44.547727, 31.819805, 0), Vector(31.819805, 44.547727, 0)),  # 6
    Part.LineSegment(Vector(31.819805, 44.547727, 0), Vector(53.033009, 65.760931, 0)),  # 7
    Part.LineSegment(Vector(-31.819805, 44.547727, 0), Vector(-44.547727, 31.819805, 0)),  # 8
    Part.LineSegment(Vector(-44.547727, 31.819805, 0), Vector(-65.760931, 53.033009, 0)),  # 9
    Part.LineSegment(Vector(-65.760931, 53.033009, 0), Vector(-53.033009, 65.760931, 0)),  # 10
    Part.LineSegment(Vector(-53.033009, 65.760931, 0), Vector(-31.819805, 44.547727, 0)),  # 11
    Part.LineSegment(Vector(-53.033009, -65.760931, 0), Vector(-65.760931, -53.033009, 0)),  # 12
    Part.LineSegment(Vector(-65.760931, -53.033009, 0), Vector(-44.547727, -31.819805, 0)),  # 13
    Part.LineSegment(Vector(-44.547727, -31.819805, 0), Vector(-31.819805, -44.547727, 0)),  # 14
    Part.LineSegment(Vector(-31.819805, -44.547727, 0), Vector(-53.033009, -65.760931, 0)),  # 15
], False)
sketch6.addConstraint([
    Sketcher.Constraint("Coincident", 0, 2, 1, 1),
    Sketcher.Constraint("Coincident", 1, 2, 2, 1),
    Sketcher.Constraint("Coincident", 2, 2, 3, 1),
    Sketcher.Constraint("Coincident", 3, 2, 0, 1),
    Sketcher.Constraint("Coincident", 4, 2, 5, 1),
    Sketcher.Constraint("Coincident", 5, 2, 6, 1),
    Sketcher.Constraint("Coincident", 6, 2, 7, 1),
    Sketcher.Constraint("Coincident", 7, 2, 4, 1),
    Sketcher.Constraint("Coincident", 8, 2, 9, 1),
    Sketcher.Constraint("Coincident", 9, 2, 10, 1),
    Sketcher.Constraint("Coincident", 10, 2, 11, 1),
    Sketcher.Constraint("Coincident", 11, 2, 8, 1),
    Sketcher.Constraint("Coincident", 12, 2, 13, 1),
    Sketcher.Constraint("Coincident", 13, 2, 14, 1),
    Sketcher.Constraint("Coincident", 14, 2, 15, 1),
    Sketcher.Constraint("Coincident", 15, 2, 12, 1),
    Sketcher.Constraint("Symmetric", 0, 2, 8, 2, -1, 1),
    Sketcher.Constraint("Symmetric", 1, 2, 9, 2, -1, 1),
    Sketcher.Constraint("Symmetric", 2, 2, 10, 2, -1, 1),
    Sketcher.Constraint("Symmetric", 3, 2, 11, 2, -1, 1),
    Sketcher.Constraint("Symmetric", 4, 2, 12, 2, -1, 1),
    Sketcher.Constraint("Symmetric", 5, 2, 13, 2, -1, 1),
    Sketcher.Constraint("Symmetric", 6, 2, 14, 2, -1, 1),
    Sketcher.Constraint("Symmetric", 7, 2, 15, 2, -1, 1),
    Sketcher.Constraint("Symmetric", 5, 2, 8, 2, -2),
    Sketcher.Constraint("Symmetric", 4, 2, 9, 2, -2),
    Sketcher.Constraint("Symmetric", 7, 2, 10, 2, -2),
    Sketcher.Constraint("Symmetric", 6, 2, 11, 2, -2),
    Sketcher.Constraint("Perpendicular", 0, 1),
    Sketcher.Constraint("Perpendicular", 1, 2),
    Sketcher.Constraint("Perpendicular", 2, 3),
    Sketcher.Constraint("Parallel", 3, 4),
    Sketcher.Constraint("Distance", 0, Q("18 mm")),
    Sketcher.Constraint("Distance", 1, Q("30 mm")),
    Sketcher.Constraint("DistanceX", -1, 1, 1, 2, Q("65.760931 mm")),
    Sketcher.Constraint("DistanceY", 1, 2, -1, 1, Q("53.033009 mm")),
])
pocket4 = body.newObject("PartDesign::Pocket", "Pocket003")
pocket4.Profile = sketch6
pocket4.Length = 2
pocket4.Reversed = True
doc.recompute()

fillet3 = body.newObject("PartDesign::Fillet", "Fillet002")
fillet3.Base = (pocket4, edges_at(pocket4, [
    (48.79, 12, -78.489),
    (78.489, 12, -48.79),
    (78.489, 12, 48.79),
    (48.79, 12, 78.489),
    (-48.79, 12, 78.489),
    (-78.489, 12, 48.79),
    (-78.489, 12, -48.79),
    (-48.79, 12, -78.489),
]))
fillet3.Radius = 1

# Sketch on XZ plane
sketch7 = body.newObject("Sketcher::SketchObject", "Sketch006")
sketch7.AttachmentSupport = (doc.getObject("XZ_Plane"), [""])
sketch7.MapMode = "FlatFace"
sketch7.AttachmentOffset = App.Placement(Vector(0, 0, -6), App.Rotation())
sketch7.addGeometry(Part.Circle(Vector(0, 0, 0), Vector(0, 0, 1), 35), False)
sketch7.addConstraint([
    Sketcher.Constraint("Coincident", 0, 3, -1, 1),
    Sketcher.Constraint("Diameter", 0, Q("70 mm")),
])
pocket5 = body.newObject("PartDesign::Pocket", "Pocket004")
pocket5.Profile = sketch7
pocket5.Type = "ThroughAll"
pocket5.Midplane = True

doc.recompute()
